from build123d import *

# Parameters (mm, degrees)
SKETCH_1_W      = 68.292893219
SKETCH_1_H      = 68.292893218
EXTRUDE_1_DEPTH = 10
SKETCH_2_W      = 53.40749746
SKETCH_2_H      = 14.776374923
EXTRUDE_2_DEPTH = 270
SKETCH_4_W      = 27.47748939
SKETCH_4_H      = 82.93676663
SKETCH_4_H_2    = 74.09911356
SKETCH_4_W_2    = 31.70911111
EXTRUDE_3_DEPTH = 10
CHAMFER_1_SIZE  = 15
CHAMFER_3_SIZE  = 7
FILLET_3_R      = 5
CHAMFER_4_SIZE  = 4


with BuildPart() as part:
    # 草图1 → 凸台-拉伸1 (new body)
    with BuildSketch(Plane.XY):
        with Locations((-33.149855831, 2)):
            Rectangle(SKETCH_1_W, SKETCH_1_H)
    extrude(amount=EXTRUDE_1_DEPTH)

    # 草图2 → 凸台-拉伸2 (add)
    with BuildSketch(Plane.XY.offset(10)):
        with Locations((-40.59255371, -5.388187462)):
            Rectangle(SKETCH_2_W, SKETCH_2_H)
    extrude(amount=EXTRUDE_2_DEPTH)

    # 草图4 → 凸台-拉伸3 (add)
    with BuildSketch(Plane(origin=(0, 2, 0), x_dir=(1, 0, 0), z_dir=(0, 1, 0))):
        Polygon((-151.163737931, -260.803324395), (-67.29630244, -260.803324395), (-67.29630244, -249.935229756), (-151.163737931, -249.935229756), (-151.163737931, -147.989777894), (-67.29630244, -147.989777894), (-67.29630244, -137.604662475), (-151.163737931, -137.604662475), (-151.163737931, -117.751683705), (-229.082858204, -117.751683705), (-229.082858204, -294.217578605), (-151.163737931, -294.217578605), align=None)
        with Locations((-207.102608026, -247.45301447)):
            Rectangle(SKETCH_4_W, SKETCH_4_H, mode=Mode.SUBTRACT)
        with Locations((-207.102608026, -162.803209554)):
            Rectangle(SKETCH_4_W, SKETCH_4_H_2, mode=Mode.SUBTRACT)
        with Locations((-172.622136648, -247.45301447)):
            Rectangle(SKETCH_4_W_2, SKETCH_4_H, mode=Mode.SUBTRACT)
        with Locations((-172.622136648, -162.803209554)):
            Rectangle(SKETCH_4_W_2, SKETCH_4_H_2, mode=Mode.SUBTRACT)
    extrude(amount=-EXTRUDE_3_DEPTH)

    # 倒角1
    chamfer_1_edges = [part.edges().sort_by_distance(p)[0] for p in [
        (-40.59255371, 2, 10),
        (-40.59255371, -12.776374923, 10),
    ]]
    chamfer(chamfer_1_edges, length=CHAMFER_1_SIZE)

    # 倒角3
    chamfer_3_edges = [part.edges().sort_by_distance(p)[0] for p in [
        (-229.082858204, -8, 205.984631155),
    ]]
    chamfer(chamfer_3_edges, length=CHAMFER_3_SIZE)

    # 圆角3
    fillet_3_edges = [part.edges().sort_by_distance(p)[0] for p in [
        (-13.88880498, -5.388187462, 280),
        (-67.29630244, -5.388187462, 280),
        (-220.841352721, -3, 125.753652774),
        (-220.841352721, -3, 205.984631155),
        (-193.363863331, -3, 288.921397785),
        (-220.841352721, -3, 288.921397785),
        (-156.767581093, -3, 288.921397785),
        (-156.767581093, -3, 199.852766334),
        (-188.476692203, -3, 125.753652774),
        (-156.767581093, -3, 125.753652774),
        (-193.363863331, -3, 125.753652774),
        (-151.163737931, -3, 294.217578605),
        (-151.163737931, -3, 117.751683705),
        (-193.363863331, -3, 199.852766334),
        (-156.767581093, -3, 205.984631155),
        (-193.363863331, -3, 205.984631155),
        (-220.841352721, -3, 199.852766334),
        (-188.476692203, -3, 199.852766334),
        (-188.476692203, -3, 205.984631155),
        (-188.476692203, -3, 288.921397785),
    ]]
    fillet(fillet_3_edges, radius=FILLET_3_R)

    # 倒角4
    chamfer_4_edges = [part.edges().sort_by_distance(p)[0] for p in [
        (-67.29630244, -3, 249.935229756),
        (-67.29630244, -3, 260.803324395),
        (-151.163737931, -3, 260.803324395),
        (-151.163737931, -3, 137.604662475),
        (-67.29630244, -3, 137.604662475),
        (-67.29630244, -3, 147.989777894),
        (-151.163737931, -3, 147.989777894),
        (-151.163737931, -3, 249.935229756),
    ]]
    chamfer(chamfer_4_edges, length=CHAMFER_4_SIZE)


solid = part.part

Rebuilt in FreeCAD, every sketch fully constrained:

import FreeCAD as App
import Part
import Sketcher
Q = App.Units.Quantity


def edges_at(feature, points):
    """Names of the edges that pass closest to the given points."""
    edges = feature.Shape.Edges
    near = lambda p: min(range(len(edges)), key=lambda i: edges[i].distToShape(Part.Vertex(*p))[0])
    return sorted({f"Edge{near(p) + 1}" for p in points})


def add_polygon(sketch, points):
    """Adds a closed chain of lines whose ends are joined by coincident constraints."""
    first, n = sketch.GeometryCount, len(points)
    for a, b in zip(points, points[1:] + points[:1]):
        sketch.addGeometry(Part.LineSegment(App.Vector(*a, 0), App.Vector(*b, 0)), False)
    for i in range(n):
        sketch.addConstraint(Sketcher.Constraint("Coincident", first + i, 2, first + (i + 1) % n, 1))

doc = App.newDocument("Part")
body = doc.addObject("PartDesign::Body", "Body")

# Sketch on XY plane
sketch1 = doc.addObject("Sketcher::SketchObject", "Sketch")
body.addObject(sketch1)
sketch1.AttachmentSupport = (doc.XY_Plane, [""])
sketch1.MapMode = "FlatFace"
add_polygon(sketch1, [(-67, 36), (-67, -32), (1, -32), (1, 36)])  # lines 0-3
sketch1.addConstraint(Sketcher.Constraint("Vertical", 0))
sketch1.addConstraint(Sketcher.Constraint("Horizontal", 1))
sketch1.addConstraint(Sketcher.Constraint("Vertical", 2))
sketch1.addConstraint(Sketcher.Constraint("Horizontal", 3))
sketch1.addConstraint(Sketcher.Constraint("Equal", 3, 0))
sketch1.addConstraint(Sketcher.Constraint("DistanceX", 1, 1, 1, 2, Q("68.292893 mm")))
sketch1.addConstraint(Sketcher.Constraint("DistanceX", -1, 1, 1, 2, Q("0.996591 mm")))
sketch1.addConstraint(Sketcher.Constraint("DistanceY", 0, 2, -1, 1, Q("32.146447 mm")))
pad1 = doc.addObject("PartDesign::Pad", "Pad")
body.addObject(pad1)
pad1.Profile = sketch1
pad1.Length = 10

# Sketch on XY plane
sketch2 = doc.addObject("Sketcher::SketchObject", "Sketch001")
body.addObject(sketch2)
sketch2.AttachmentSupport = (doc.XY_Plane, [""])
sketch2.MapMode = "FlatFace"
sketch2.AttachmentOffset = App.Placement(App.Vector(0, 0, 10), App.Rotation())
add_polygon(sketch2, [(-67, 2), (-67, -13), (-14, -13), (-14, 2)])  # lines 0-3
sketch2.addConstraint(Sketcher.Constraint("Vertical", 0))
sketch2.addConstraint(Sketcher.Constraint("Horizontal", 1))
sketch2.addConstraint(Sketcher.Constraint("Vertical", 2))
sketch2.addConstraint(Sketcher.Constraint("Horizontal", 3))
sketch2.addConstraint(Sketcher.Constraint("DistanceY", -1, 1, 2, 2, Q("2 mm")))
sketch2.addConstraint(Sketcher.Constraint("DistanceX", 1, 1, 1, 2, Q("53.407497 mm")))
sketch2.addConstraint(Sketcher.Constraint("DistanceY", 0, 2, 0, 1, Q("14.776375 mm")))
sketch2.addConstraint(Sketcher.Constraint("DistanceX", 0, 2, -1, 1, Q("67.296302 mm")))
pad2 = doc.addObject("PartDesign::Pad", "Pad001")
body.addObject(pad2)
pad2.Profile = sketch2
pad2.Length = 270

# Sketch on XZ plane
sketch3 = doc.addObject("Sketcher::SketchObject", "Sketch002")
body.addObject(sketch3)
sketch3.AttachmentSupport = (doc.XZ_Plane, [""])
sketch3.MapMode = "FlatFace"
sketch3.AttachmentOffset = App.Placement(App.Vector(0, 0, -2), App.Rotation())
add_polygon(sketch3, [(-151, 261), (-67, 261), (-67, 250), (-151, 250), (-151, 148), (-67, 148), (-67, 138), (-151, 138), (-151, 118), (-229, 118), (-229, 294), (-151, 294)])  # lines 0-11
add_polygon(sketch3, [(-193, 289), (-221, 289), (-221, 206), (-193, 206)])  # lines 12-15
add_polygon(sketch3, [(-157, 289), (-188, 289), (-188, 206), (-157, 206)])  # lines 16-19
add_polygon(sketch3, [(-193, 200), (-221, 200), (-221, 126), (-193, 126)])  # lines 20-23
add_polygon(sketch3, [(-157, 200), (-188, 200), (-188, 126), (-157, 126)])  # lines 24-27
sketch3.addConstraint(Sketcher.Constraint("Horizontal", 0))
sketch3.addConstraint(Sketcher.Constraint("Vertical", 1))
sketch3.addConstraint(Sketcher.Constraint("Horizontal", 2))
sketch3.addConstraint(Sketcher.Constraint("Vertical", 3))
sketch3.addConstraint(Sketcher.Constraint("Horizontal", 4))
sketch3.addConstraint(Sketcher.Constraint("Vertical", 5))
sketch3.addConstraint(Sketcher.Constraint("Horizontal", 6))
sketch3.addConstraint(Sketcher.Constraint("Vertical", 7))
sketch3.addConstraint(Sketcher.Constraint("Horizontal", 8))
sketch3.addConstraint(Sketcher.Constraint("Vertical", 9))
sketch3.addConstraint(Sketcher.Constraint("Horizontal", 10))
sketch3.addConstraint(Sketcher.Constraint("Vertical", 11))
sketch3.addConstraint(Sketcher.Constraint("Horizontal", 12))
sketch3.addConstraint(Sketcher.Constraint("Vertical", 13))
sketch3.addConstraint(Sketcher.Constraint("Horizontal", 14))
sketch3.addConstraint(Sketcher.Constraint("Vertical", 15))
sketch3.addConstraint(Sketcher.Constraint("Horizontal", 16))
sketch3.addConstraint(Sketcher.Constraint("Vertical", 17))
sketch3.addConstraint(Sketcher.Constraint("Horizontal", 18))
sketch3.addConstraint(Sketcher.Constraint("Vertical", 19))
sketch3.addConstraint(Sketcher.Constraint("Horizontal", 20))
sketch3.addConstraint(Sketcher.Constraint("Vertical", 21))
sketch3.addConstraint(Sketcher.Constraint("Horizontal", 22))
sketch3.addConstraint(Sketcher.Constraint("Vertical", 23))
sketch3.addConstraint(Sketcher.Constraint("Horizontal", 24))
sketch3.addConstraint(Sketcher.Constraint("Vertical", 25))
sketch3.addConstraint(Sketcher.Constraint("Horizontal", 26))
sketch3.addConstraint(Sketcher.Constraint("Vertical", 27))
sketch3.addConstraint(Sketcher.Constraint("Horizontal", 15, 2, 16, 2))
sketch3.addConstraint(Sketcher.Constraint("Horizontal", 14, 2, 17, 2))
sketch3.addConstraint(Sketcher.Constraint("Horizontal", 23, 2, 24, 2))
sketch3.addConstraint(Sketcher.Constraint("Horizontal", 22, 2, 25, 2))
sketch3.addConstraint(Sketcher.Constraint("Vertical", 1, 2, 4, 2))
sketch3.addConstraint(Sketcher.Constraint("Vertical", 3, 2, 6, 2))
sketch3.addConstraint(Sketcher.Constraint("Vertical", 7, 2, 10, 2))
sketch3.addConstraint(Sketcher.Constraint("Vertical", 13, 2, 20, 2))
sketch3.addConstraint(Sketcher.Constraint("Vertical", 15, 2, 22, 2))
sketch3.addConstraint(Sketcher.Constraint("Vertical", 17, 2, 24, 2))
sketch3.addConstraint(Sketcher.Constraint("Vertical", 19, 2, 26, 2))
sketch3.addConstraint(Sketcher.Constraint("DistanceX", 8, 2, 8, 1, Q("77.91912 mm")))
sketch3.addConstraint(Sketcher.Constraint("DistanceX", 12, 2, 12, 1, Q("27.477489 mm")))
sketch3.addConstraint(Sketcher.Constraint("DistanceX", 16, 2, 16, 1, Q("31.709111 mm")))
sketch3.addConstraint(Sketcher.Constraint("DistanceY", 3, 2, 3, 1, Q("101.945452 mm")))
sketch3.addConstraint(Sketcher.Constraint("DistanceY", 7, 2, 7, 1, Q("19.852979 mm")))
sketch3.addConstraint(Sketcher.Constraint("DistanceY", 3, 2, 9, 2, Q("146.227801 mm")))
sketch3.addConstraint(Sketcher.Constraint("DistanceY", 13, 2, 2, 2, Q("43.950599 mm")))
sketch3.addConstraint(Sketcher.Constraint("DistanceX", 0, 1, 0, 2, Q("83.867435 mm")))
sketch3.addConstraint(Sketcher.Constraint("DistanceY", 1, 2, 1, 1, Q("10.868095 mm")))
sketch3.addConstraint(Sketcher.Constraint("DistanceY", 5, 2, 5, 1, Q("10.385115 mm")))
sketch3.addConstraint(Sketcher.Constraint("DistanceY", 13, 2, 13, 1, Q("82.936767 mm")))
sketch3.addConstraint(Sketcher.Constraint("DistanceY", 21, 2, 21, 1, Q("74.099114 mm")))
sketch3.addConstraint(Sketcher.Constraint("DistanceY", -1, 1, 1, 2, Q("249.93523 mm")))
sketch3.addConstraint(Sketcher.Constraint("DistanceX", 8, 2, -1, 1, Q("229.082858 mm")))
sketch3.addConstraint(Sketcher.Constraint("DistanceX", 18, 2, -1, 1, Q("156.767581 mm")))
sketch3.addConstraint(Sketcher.Constraint("DistanceX", 12, 2, 0, 2, Q("153.54505 mm")))
sketch3.addConstraint(Sketcher.Constraint("DistanceY", 8, 2, 21, 2, Q("8.001969 mm")))
pad3 = doc.addObject("PartDesign::Pad", "Pad002")
body.addObject(pad3)
pad3.Profile = sketch3
pad3.Length = 10
doc.recompute()

chamfer = doc.addObject("PartDesign::Chamfer", "Chamfer")
body.addObject(chamfer)
chamfer.Base = (pad3, edges_at(pad3, [(-40.593, 2, 10), (-40.593, -12.776, 10)]))
chamfer.Size = 15
doc.recompute()

chamfer2 = doc.addObject("PartDesign::Chamfer", "Chamfer001")
body.addObject(chamfer2)
chamfer2.Base = (chamfer, edges_at(chamfer, [(-229.083, -8, 205.985)]))
chamfer2.Size = 7
doc.recompute()

fillet = doc.addObject("PartDesign::Fillet", "Fillet")
body.addObject(fillet)
fillet.Base = (chamfer2, edges_at(chamfer2, [
    (-13.889, -5.388, 280),
    (-67.296, -5.388, 280),
    (-220.841, -3, 125.754),
    (-220.841, -3, 205.985),
    (-193.364, -3, 288.921),
    (-220.841, -3, 288.921),
    (-156.768, -3, 288.921),
    (-156.768, -3, 199.853),
    (-188.477, -3, 125.754),
    (-156.768, -3, 125.754),
    (-193.364, -3, 125.754),
    (-151.164, -3, 294.218),
    (-151.164, -3, 117.752),
    (-193.364, -3, 199.853),
    (-156.768, -3, 205.985),
    (-193.364, -3, 205.985),
    (-220.841, -3, 199.853),
    (-188.477, -3, 199.853),
    (-188.477, -3, 205.985),
    (-188.477, -3, 288.921),
]))
fillet.Radius = 5
doc.recompute()

chamfer3 = doc.addObject("PartDesign::Chamfer", "Chamfer002")
body.addObject(chamfer3)
chamfer3.Base = (fillet, edges_at(fillet, [
    (-67.296, -3, 249.935),
    (-67.296, -3, 260.803),
    (-151.164, -3, 260.803),
    (-151.164, -3, 137.605),
    (-67.296, -3, 137.605),
    (-67.296, -3, 147.99),
    (-151.164, -3, 147.99),
    (-151.164, -3, 249.935),
]))
chamfer3.Size = 4

doc.recompute()
